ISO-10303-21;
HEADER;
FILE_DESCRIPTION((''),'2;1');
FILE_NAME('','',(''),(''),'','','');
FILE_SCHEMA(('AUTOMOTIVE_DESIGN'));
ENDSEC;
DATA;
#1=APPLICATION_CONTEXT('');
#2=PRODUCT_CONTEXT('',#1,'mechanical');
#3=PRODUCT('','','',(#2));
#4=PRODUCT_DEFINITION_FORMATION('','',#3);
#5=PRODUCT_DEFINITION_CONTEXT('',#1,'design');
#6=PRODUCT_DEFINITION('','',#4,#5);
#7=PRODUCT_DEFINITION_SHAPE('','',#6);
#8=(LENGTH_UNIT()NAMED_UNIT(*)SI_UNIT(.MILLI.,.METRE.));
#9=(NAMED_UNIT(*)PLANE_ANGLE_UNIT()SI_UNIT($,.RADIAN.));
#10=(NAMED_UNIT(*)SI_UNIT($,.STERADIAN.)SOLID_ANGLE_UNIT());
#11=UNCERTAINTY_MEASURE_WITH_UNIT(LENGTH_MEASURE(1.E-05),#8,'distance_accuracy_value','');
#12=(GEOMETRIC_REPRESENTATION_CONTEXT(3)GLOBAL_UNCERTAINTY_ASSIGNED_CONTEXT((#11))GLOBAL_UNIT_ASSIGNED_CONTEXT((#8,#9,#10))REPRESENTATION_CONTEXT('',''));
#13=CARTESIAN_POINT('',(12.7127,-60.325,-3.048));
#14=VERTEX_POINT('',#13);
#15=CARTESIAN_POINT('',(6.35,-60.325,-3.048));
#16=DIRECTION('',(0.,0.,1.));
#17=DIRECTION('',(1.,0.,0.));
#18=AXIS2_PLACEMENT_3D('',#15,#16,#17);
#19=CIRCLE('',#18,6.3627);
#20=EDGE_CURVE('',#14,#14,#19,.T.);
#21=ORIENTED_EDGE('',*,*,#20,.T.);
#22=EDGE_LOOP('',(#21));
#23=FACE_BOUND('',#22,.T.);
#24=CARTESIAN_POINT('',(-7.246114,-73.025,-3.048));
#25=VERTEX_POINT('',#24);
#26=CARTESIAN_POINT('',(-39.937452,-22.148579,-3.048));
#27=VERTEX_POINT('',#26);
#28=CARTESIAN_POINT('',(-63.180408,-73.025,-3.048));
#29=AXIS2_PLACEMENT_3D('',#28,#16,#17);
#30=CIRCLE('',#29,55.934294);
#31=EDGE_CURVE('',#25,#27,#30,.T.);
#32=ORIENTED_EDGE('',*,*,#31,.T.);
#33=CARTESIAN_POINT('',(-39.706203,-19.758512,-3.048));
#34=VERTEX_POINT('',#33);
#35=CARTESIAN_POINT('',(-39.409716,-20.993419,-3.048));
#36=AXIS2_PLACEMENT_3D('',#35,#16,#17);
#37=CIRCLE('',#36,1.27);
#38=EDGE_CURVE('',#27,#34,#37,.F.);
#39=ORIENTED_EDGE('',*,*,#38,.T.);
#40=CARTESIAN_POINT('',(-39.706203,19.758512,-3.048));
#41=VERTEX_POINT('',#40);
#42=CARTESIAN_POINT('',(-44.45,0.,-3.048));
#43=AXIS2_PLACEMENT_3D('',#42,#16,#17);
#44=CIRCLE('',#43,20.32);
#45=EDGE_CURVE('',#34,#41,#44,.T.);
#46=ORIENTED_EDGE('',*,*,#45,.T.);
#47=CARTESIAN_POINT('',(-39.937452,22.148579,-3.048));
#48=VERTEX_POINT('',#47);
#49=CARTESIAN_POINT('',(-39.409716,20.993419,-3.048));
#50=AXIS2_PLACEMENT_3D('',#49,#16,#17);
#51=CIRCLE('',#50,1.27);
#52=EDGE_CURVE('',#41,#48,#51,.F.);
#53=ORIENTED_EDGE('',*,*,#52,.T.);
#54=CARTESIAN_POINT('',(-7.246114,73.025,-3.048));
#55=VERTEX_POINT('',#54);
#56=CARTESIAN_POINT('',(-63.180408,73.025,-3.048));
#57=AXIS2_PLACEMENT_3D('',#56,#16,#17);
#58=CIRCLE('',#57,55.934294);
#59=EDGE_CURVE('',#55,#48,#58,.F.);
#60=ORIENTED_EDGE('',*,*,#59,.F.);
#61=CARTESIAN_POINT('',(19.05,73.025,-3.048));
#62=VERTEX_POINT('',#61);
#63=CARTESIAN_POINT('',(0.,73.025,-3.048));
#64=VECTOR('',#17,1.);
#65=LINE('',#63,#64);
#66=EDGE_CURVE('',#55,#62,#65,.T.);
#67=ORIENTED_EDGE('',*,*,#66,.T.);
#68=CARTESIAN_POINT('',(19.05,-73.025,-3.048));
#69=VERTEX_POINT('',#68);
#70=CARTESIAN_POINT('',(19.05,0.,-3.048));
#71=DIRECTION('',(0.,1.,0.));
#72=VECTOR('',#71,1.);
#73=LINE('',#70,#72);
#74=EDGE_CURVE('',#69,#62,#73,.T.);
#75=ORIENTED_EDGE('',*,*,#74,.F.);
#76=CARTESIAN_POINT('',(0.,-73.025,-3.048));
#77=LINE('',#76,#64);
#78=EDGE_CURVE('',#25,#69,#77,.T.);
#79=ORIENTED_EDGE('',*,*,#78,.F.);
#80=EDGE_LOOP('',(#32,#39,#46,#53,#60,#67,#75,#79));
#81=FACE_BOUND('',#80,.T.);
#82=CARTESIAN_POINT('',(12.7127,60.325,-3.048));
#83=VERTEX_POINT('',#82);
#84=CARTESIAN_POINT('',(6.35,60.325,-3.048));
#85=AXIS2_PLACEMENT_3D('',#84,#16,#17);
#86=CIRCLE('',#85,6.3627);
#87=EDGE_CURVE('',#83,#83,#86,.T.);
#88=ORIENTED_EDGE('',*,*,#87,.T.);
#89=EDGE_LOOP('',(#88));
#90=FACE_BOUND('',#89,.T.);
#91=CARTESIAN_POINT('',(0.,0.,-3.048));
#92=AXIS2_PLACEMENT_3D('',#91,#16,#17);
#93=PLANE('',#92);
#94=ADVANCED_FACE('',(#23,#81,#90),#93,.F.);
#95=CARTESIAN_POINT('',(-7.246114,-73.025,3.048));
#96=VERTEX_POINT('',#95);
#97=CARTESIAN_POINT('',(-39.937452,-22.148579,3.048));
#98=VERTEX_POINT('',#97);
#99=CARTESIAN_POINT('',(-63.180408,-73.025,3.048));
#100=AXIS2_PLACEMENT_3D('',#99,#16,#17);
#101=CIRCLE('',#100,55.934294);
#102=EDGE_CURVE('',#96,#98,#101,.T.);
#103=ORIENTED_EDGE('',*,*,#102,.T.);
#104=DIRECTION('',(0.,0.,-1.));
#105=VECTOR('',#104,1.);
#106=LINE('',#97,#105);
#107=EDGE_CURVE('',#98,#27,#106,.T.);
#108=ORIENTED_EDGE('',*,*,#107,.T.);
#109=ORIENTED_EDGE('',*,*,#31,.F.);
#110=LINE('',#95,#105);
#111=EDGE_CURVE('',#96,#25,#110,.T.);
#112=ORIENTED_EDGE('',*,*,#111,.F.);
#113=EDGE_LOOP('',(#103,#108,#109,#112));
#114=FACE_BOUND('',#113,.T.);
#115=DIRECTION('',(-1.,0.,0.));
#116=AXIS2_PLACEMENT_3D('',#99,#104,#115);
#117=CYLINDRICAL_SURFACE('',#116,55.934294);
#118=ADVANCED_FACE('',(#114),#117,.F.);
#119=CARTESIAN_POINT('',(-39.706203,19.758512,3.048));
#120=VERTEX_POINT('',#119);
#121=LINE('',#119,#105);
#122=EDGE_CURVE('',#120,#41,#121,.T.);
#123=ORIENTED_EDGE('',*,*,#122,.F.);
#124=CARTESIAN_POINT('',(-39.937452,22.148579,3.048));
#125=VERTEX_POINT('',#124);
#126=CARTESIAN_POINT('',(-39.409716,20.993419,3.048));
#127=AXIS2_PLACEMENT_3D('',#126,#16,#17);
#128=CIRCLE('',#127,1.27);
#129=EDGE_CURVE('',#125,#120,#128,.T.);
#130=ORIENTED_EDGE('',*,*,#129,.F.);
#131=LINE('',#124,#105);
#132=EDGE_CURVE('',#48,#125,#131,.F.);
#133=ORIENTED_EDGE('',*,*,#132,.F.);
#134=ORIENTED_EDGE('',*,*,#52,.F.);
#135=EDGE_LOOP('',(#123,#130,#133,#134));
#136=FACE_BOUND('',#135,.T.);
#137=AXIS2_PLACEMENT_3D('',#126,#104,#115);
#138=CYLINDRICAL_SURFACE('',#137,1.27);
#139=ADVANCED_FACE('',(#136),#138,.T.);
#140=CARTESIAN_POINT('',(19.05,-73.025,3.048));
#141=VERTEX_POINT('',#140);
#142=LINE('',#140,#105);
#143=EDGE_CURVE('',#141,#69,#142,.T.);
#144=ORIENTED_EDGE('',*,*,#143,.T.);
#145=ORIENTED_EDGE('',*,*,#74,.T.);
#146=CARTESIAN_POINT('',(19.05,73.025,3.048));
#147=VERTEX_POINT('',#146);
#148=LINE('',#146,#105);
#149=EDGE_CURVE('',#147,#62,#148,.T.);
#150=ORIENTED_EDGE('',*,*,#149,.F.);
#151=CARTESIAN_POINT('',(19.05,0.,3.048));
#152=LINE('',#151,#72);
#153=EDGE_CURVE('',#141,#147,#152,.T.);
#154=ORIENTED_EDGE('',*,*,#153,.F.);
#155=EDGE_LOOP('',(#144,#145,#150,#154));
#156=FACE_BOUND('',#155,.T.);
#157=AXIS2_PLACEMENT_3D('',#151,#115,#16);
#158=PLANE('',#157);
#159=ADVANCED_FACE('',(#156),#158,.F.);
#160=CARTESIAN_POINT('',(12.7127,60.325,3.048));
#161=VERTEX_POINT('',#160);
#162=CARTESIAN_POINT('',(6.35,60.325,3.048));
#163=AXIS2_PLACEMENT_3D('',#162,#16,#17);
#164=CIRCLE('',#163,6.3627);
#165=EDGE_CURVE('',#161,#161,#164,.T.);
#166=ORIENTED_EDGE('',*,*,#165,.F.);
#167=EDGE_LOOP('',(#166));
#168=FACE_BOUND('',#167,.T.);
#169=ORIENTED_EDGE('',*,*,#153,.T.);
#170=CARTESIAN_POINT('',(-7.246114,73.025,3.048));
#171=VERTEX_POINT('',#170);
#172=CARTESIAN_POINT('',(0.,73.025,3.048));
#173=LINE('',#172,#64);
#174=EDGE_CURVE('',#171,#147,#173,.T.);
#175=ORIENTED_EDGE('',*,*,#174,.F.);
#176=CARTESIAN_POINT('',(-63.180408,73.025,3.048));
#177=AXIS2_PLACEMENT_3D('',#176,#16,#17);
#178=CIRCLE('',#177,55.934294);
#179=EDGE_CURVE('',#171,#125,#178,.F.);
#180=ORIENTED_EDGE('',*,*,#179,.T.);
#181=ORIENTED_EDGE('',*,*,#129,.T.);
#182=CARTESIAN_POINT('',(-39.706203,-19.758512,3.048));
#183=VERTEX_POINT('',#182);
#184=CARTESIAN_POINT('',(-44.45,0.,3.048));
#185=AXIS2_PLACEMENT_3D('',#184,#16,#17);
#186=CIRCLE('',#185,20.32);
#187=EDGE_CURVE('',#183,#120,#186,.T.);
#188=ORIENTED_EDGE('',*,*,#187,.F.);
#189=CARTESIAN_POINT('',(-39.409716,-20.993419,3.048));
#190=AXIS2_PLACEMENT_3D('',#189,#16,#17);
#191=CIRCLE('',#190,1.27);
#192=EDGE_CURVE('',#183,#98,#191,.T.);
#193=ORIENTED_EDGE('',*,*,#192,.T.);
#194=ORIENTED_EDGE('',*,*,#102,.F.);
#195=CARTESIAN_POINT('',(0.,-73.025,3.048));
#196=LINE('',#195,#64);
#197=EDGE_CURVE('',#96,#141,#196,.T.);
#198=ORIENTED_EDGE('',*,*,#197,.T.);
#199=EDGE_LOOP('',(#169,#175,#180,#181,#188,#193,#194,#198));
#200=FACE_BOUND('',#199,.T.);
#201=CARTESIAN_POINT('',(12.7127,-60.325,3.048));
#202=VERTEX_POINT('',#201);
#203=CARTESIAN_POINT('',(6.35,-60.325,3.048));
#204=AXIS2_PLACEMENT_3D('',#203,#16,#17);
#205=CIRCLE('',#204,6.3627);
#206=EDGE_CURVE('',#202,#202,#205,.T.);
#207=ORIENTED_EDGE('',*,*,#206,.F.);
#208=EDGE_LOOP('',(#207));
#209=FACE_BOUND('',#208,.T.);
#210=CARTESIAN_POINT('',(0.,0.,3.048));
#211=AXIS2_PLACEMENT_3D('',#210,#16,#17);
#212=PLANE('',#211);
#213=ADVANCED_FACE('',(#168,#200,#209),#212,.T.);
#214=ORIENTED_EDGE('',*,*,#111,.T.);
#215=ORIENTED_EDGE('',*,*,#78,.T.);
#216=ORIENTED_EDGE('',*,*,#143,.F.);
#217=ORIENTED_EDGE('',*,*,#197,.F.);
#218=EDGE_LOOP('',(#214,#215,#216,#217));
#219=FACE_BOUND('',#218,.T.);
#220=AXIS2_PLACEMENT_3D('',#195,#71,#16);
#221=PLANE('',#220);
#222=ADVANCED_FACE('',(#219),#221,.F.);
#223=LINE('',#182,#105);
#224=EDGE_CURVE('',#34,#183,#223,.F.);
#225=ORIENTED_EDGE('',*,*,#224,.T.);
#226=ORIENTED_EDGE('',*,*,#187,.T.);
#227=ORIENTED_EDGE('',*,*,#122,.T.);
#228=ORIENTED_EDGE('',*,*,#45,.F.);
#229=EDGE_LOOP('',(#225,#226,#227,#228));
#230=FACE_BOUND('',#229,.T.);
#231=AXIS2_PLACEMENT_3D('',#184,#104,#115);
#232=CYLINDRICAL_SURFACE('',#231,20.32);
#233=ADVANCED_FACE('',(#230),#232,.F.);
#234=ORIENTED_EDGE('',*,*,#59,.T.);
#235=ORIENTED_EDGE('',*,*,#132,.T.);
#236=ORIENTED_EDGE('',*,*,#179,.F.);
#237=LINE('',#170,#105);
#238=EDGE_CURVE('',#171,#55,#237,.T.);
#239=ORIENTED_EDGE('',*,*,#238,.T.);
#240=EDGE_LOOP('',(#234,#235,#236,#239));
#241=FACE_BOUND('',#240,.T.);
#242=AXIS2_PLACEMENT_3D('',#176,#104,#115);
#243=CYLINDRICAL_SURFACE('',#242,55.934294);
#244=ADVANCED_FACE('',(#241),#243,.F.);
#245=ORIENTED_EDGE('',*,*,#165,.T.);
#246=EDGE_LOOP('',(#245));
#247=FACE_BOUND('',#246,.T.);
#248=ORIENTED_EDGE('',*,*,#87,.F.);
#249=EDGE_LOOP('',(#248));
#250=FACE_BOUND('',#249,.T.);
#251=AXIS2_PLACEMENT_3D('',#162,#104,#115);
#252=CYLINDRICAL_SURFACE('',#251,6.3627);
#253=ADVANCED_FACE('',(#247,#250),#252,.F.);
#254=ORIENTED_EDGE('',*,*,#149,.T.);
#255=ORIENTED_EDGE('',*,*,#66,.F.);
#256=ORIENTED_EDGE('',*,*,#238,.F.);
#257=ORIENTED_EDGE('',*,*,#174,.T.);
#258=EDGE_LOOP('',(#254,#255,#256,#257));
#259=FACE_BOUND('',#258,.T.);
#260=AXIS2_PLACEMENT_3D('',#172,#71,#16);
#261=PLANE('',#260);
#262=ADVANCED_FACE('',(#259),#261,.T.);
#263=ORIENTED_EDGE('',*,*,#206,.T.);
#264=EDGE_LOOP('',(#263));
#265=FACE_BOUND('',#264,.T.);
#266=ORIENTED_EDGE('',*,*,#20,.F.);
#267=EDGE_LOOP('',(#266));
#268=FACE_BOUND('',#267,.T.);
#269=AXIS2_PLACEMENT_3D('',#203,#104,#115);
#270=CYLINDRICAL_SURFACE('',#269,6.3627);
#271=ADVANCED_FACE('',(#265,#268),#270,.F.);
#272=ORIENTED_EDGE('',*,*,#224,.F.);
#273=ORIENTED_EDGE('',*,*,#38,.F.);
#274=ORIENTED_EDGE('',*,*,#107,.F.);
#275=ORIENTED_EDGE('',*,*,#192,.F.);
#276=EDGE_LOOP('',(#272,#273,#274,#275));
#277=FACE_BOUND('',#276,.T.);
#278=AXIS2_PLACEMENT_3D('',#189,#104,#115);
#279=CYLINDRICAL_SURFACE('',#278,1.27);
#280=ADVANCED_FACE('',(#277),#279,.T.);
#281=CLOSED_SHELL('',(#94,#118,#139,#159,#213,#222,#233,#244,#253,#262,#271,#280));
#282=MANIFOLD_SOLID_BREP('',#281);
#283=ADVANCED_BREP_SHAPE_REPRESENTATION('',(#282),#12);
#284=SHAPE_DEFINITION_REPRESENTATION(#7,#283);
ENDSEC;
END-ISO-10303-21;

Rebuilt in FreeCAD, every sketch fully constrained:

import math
import FreeCAD as App
import Part
import Sketcher
from FreeCAD import Vector
Q = App.Units.Quantity


def edges_at(feature, points):
    """Names of the edges that pass closest to the given points."""
    edges = feature.Shape.Edges
    near = lambda p: min(range(len(edges)), key=lambda i: edges[i].distToShape(Part.Vertex(*p))[0])
    return sorted({f"Edge{near(p) + 1}" for p in points})

doc = App.newDocument("Part")
body = doc.addObject("PartDesign::Body", "Body")

sketch1 = body.newObject("Sketcher::SketchObject", "Sketch")
sketch1.AttachmentSupport = (doc.getObject("XY_Plane"), [""])
sketch1.MapMode = "FlatFace"
sketch1.addGeometry([
    Part.ArcOfCircle(Part.Circle(Vector(-63, -73, 0), Vector(0, 0, 1), 56), math.radians(38), math.radians(70)),
    Part.ArcOfCircle(Part.Circle(Vector(-63, -73, 0), Vector(0, 0, 1), 56), math.radians(31.95), math.radians(37.91)),
    Part.ArcOfCircle(Part.Circle(Vector(-63, -73, 0), Vector(0, 0, 1), 56), math.radians(0), math.radians(32)),
    Part.LineSegment(Vector(-7, -73, 0), Vector(19, -73, 0)),
    Part.LineSegment(Vector(19, -73, 0), Vector(19, 73, 0)),
    Part.LineSegment(Vector(19, 73, 0), Vector(-7, 73, 0)),
    Part.ArcOfCircle(Part.Circle(Vector(-63, 73, 0), Vector(0, 0, 1), 56), math.radians(-32), math.radians(0)),
    Part.ArcOfCircle(Part.Circle(Vector(-63, 73, 0), Vector(0, 0, 1), 56), math.radians(-37.91), math.radians(-31.95)),
    Part.ArcOfCircle(Part.Circle(Vector(-63, 73, 0), Vector(0, 0, 1), 56), math.radians(-70), math.radians(-38)),
    Part.ArcOfCircle(Part.Circle(Vector(-44, 0, 0), Vector(0, 0, 1), 20), math.radians(0), math.radians(90)),
    Part.ArcOfCircle(Part.Circle(Vector(-44, 0, 0), Vector(0, 0, 1), 20), math.radians(-90), math.radians(0)),
    Part.Circle(Vector(6, -60, 0), Vector(0, 0, 1), 6),
    Part.Circle(Vector(6, 60, 0), Vector(0, 0, 1), 6),
], False)
sketch1.addConstraint([
    Sketcher.Constraint("Tangent", 0, 1, 1, 2),
    Sketcher.Constraint("Tangent", 1, 1, 2, 2),
    Sketcher.Constraint("Coincident", 2, 1, 3, 1),
    Sketcher.Constraint("Coincident", 3, 2, 4, 1),
    Sketcher.Constraint("Coincident", 4, 2, 5, 1),
    Sketcher.Constraint("Coincident", 5, 2, 6, 2),
    Sketcher.Constraint("Tangent", 6, 1, 7, 2),
    Sketcher.Constraint("Tangent", 7, 1, 8, 2),
    Sketcher.Constraint("Coincident", 8, 1, 9, 2),
    Sketcher.Constraint("Tangent", 9, 1, 10, 2),
    Sketcher.Constraint("Coincident", 10, 1, 0, 2),
    Sketcher.Constraint("Horizontal", 3),
    Sketcher.Constraint("Vertical", 4),
    Sketcher.Constraint("Horizontal", 5),
    Sketcher.Constraint("Coincident", 2, 3, 0, 3),
    Sketcher.Constraint("Coincident", 8, 3, 6, 3),
    Sketcher.Constraint("Equal", 2, 6),
    Sketcher.Constraint("Equal", 9, 10),
    Sketcher.Constraint("Equal", 11, 12),
    Sketcher.Constraint("Symmetric", 0, 3, 6, 3, -1),
    Sketcher.Constraint("Symmetric", 11, 3, 12, 3, -1),
    Sketcher.Constraint("PointOnObject", 9, 3, -1),
    Sketcher.Constraint("PointOnObject", 9, 1, -1),
    Sketcher.Constraint("Horizontal", 1, 3, 2, 1),
    Sketcher.Constraint("Horizontal", 8, 3, 4, 2),
    Sketcher.Constraint("Vertical", 1, 1, 6, 1),
    Sketcher.Constraint("Vertical", 0, 1, 7, 1),
    Sketcher.Constraint("Vertical", 10, 3, 8, 1),
    Sketcher.Constraint("Radius", 9, Q("0.8 in")),
    Sketcher.Constraint("Diameter", 11, Q("0.501 in")),
    Sketcher.Constraint("DistanceX", 10, 3, 11, 3, Q("2 in")),
    Sketcher.Constraint("DistanceX", 0, 1, 11, 3, Q("1 in")),
    Sketcher.Constraint("DistanceY", 4, 1, 4, 2, Q("5.75 in")),
    Sketcher.Constraint("DistanceY", 0, 3, 11, 3, Q("0.5 in")),
    Sketcher.Constraint("DistanceX", 11, 3, 3, 2, Q("0.5 in")),
    Sketcher.Constraint("DistanceX", 9, 3, -1, 1, Q("1.75 in")),
    Sketcher.Constraint("Radius", 0, Q("55.934294 mm")),
    Sketcher.Constraint("DistanceX", 1, 1, -1, 1, Q("15.719319 mm")),
])
pad1 = body.newObject("PartDesign::Pad", "Pad")
pad1.Profile = sketch1
pad1.Length = Q("0.24 in")
pad1.Midplane = True
doc.recompute()

fillet = body.newObject("PartDesign::Fillet", "Fillet")
fillet.Base = (pad1, edges_at(pad1, [(-44.45, -20.32, -1.524), (-44.45, 20.32, -1.524)]))
fillet.Radius = Q("0.05 in")

doc.recompute()
